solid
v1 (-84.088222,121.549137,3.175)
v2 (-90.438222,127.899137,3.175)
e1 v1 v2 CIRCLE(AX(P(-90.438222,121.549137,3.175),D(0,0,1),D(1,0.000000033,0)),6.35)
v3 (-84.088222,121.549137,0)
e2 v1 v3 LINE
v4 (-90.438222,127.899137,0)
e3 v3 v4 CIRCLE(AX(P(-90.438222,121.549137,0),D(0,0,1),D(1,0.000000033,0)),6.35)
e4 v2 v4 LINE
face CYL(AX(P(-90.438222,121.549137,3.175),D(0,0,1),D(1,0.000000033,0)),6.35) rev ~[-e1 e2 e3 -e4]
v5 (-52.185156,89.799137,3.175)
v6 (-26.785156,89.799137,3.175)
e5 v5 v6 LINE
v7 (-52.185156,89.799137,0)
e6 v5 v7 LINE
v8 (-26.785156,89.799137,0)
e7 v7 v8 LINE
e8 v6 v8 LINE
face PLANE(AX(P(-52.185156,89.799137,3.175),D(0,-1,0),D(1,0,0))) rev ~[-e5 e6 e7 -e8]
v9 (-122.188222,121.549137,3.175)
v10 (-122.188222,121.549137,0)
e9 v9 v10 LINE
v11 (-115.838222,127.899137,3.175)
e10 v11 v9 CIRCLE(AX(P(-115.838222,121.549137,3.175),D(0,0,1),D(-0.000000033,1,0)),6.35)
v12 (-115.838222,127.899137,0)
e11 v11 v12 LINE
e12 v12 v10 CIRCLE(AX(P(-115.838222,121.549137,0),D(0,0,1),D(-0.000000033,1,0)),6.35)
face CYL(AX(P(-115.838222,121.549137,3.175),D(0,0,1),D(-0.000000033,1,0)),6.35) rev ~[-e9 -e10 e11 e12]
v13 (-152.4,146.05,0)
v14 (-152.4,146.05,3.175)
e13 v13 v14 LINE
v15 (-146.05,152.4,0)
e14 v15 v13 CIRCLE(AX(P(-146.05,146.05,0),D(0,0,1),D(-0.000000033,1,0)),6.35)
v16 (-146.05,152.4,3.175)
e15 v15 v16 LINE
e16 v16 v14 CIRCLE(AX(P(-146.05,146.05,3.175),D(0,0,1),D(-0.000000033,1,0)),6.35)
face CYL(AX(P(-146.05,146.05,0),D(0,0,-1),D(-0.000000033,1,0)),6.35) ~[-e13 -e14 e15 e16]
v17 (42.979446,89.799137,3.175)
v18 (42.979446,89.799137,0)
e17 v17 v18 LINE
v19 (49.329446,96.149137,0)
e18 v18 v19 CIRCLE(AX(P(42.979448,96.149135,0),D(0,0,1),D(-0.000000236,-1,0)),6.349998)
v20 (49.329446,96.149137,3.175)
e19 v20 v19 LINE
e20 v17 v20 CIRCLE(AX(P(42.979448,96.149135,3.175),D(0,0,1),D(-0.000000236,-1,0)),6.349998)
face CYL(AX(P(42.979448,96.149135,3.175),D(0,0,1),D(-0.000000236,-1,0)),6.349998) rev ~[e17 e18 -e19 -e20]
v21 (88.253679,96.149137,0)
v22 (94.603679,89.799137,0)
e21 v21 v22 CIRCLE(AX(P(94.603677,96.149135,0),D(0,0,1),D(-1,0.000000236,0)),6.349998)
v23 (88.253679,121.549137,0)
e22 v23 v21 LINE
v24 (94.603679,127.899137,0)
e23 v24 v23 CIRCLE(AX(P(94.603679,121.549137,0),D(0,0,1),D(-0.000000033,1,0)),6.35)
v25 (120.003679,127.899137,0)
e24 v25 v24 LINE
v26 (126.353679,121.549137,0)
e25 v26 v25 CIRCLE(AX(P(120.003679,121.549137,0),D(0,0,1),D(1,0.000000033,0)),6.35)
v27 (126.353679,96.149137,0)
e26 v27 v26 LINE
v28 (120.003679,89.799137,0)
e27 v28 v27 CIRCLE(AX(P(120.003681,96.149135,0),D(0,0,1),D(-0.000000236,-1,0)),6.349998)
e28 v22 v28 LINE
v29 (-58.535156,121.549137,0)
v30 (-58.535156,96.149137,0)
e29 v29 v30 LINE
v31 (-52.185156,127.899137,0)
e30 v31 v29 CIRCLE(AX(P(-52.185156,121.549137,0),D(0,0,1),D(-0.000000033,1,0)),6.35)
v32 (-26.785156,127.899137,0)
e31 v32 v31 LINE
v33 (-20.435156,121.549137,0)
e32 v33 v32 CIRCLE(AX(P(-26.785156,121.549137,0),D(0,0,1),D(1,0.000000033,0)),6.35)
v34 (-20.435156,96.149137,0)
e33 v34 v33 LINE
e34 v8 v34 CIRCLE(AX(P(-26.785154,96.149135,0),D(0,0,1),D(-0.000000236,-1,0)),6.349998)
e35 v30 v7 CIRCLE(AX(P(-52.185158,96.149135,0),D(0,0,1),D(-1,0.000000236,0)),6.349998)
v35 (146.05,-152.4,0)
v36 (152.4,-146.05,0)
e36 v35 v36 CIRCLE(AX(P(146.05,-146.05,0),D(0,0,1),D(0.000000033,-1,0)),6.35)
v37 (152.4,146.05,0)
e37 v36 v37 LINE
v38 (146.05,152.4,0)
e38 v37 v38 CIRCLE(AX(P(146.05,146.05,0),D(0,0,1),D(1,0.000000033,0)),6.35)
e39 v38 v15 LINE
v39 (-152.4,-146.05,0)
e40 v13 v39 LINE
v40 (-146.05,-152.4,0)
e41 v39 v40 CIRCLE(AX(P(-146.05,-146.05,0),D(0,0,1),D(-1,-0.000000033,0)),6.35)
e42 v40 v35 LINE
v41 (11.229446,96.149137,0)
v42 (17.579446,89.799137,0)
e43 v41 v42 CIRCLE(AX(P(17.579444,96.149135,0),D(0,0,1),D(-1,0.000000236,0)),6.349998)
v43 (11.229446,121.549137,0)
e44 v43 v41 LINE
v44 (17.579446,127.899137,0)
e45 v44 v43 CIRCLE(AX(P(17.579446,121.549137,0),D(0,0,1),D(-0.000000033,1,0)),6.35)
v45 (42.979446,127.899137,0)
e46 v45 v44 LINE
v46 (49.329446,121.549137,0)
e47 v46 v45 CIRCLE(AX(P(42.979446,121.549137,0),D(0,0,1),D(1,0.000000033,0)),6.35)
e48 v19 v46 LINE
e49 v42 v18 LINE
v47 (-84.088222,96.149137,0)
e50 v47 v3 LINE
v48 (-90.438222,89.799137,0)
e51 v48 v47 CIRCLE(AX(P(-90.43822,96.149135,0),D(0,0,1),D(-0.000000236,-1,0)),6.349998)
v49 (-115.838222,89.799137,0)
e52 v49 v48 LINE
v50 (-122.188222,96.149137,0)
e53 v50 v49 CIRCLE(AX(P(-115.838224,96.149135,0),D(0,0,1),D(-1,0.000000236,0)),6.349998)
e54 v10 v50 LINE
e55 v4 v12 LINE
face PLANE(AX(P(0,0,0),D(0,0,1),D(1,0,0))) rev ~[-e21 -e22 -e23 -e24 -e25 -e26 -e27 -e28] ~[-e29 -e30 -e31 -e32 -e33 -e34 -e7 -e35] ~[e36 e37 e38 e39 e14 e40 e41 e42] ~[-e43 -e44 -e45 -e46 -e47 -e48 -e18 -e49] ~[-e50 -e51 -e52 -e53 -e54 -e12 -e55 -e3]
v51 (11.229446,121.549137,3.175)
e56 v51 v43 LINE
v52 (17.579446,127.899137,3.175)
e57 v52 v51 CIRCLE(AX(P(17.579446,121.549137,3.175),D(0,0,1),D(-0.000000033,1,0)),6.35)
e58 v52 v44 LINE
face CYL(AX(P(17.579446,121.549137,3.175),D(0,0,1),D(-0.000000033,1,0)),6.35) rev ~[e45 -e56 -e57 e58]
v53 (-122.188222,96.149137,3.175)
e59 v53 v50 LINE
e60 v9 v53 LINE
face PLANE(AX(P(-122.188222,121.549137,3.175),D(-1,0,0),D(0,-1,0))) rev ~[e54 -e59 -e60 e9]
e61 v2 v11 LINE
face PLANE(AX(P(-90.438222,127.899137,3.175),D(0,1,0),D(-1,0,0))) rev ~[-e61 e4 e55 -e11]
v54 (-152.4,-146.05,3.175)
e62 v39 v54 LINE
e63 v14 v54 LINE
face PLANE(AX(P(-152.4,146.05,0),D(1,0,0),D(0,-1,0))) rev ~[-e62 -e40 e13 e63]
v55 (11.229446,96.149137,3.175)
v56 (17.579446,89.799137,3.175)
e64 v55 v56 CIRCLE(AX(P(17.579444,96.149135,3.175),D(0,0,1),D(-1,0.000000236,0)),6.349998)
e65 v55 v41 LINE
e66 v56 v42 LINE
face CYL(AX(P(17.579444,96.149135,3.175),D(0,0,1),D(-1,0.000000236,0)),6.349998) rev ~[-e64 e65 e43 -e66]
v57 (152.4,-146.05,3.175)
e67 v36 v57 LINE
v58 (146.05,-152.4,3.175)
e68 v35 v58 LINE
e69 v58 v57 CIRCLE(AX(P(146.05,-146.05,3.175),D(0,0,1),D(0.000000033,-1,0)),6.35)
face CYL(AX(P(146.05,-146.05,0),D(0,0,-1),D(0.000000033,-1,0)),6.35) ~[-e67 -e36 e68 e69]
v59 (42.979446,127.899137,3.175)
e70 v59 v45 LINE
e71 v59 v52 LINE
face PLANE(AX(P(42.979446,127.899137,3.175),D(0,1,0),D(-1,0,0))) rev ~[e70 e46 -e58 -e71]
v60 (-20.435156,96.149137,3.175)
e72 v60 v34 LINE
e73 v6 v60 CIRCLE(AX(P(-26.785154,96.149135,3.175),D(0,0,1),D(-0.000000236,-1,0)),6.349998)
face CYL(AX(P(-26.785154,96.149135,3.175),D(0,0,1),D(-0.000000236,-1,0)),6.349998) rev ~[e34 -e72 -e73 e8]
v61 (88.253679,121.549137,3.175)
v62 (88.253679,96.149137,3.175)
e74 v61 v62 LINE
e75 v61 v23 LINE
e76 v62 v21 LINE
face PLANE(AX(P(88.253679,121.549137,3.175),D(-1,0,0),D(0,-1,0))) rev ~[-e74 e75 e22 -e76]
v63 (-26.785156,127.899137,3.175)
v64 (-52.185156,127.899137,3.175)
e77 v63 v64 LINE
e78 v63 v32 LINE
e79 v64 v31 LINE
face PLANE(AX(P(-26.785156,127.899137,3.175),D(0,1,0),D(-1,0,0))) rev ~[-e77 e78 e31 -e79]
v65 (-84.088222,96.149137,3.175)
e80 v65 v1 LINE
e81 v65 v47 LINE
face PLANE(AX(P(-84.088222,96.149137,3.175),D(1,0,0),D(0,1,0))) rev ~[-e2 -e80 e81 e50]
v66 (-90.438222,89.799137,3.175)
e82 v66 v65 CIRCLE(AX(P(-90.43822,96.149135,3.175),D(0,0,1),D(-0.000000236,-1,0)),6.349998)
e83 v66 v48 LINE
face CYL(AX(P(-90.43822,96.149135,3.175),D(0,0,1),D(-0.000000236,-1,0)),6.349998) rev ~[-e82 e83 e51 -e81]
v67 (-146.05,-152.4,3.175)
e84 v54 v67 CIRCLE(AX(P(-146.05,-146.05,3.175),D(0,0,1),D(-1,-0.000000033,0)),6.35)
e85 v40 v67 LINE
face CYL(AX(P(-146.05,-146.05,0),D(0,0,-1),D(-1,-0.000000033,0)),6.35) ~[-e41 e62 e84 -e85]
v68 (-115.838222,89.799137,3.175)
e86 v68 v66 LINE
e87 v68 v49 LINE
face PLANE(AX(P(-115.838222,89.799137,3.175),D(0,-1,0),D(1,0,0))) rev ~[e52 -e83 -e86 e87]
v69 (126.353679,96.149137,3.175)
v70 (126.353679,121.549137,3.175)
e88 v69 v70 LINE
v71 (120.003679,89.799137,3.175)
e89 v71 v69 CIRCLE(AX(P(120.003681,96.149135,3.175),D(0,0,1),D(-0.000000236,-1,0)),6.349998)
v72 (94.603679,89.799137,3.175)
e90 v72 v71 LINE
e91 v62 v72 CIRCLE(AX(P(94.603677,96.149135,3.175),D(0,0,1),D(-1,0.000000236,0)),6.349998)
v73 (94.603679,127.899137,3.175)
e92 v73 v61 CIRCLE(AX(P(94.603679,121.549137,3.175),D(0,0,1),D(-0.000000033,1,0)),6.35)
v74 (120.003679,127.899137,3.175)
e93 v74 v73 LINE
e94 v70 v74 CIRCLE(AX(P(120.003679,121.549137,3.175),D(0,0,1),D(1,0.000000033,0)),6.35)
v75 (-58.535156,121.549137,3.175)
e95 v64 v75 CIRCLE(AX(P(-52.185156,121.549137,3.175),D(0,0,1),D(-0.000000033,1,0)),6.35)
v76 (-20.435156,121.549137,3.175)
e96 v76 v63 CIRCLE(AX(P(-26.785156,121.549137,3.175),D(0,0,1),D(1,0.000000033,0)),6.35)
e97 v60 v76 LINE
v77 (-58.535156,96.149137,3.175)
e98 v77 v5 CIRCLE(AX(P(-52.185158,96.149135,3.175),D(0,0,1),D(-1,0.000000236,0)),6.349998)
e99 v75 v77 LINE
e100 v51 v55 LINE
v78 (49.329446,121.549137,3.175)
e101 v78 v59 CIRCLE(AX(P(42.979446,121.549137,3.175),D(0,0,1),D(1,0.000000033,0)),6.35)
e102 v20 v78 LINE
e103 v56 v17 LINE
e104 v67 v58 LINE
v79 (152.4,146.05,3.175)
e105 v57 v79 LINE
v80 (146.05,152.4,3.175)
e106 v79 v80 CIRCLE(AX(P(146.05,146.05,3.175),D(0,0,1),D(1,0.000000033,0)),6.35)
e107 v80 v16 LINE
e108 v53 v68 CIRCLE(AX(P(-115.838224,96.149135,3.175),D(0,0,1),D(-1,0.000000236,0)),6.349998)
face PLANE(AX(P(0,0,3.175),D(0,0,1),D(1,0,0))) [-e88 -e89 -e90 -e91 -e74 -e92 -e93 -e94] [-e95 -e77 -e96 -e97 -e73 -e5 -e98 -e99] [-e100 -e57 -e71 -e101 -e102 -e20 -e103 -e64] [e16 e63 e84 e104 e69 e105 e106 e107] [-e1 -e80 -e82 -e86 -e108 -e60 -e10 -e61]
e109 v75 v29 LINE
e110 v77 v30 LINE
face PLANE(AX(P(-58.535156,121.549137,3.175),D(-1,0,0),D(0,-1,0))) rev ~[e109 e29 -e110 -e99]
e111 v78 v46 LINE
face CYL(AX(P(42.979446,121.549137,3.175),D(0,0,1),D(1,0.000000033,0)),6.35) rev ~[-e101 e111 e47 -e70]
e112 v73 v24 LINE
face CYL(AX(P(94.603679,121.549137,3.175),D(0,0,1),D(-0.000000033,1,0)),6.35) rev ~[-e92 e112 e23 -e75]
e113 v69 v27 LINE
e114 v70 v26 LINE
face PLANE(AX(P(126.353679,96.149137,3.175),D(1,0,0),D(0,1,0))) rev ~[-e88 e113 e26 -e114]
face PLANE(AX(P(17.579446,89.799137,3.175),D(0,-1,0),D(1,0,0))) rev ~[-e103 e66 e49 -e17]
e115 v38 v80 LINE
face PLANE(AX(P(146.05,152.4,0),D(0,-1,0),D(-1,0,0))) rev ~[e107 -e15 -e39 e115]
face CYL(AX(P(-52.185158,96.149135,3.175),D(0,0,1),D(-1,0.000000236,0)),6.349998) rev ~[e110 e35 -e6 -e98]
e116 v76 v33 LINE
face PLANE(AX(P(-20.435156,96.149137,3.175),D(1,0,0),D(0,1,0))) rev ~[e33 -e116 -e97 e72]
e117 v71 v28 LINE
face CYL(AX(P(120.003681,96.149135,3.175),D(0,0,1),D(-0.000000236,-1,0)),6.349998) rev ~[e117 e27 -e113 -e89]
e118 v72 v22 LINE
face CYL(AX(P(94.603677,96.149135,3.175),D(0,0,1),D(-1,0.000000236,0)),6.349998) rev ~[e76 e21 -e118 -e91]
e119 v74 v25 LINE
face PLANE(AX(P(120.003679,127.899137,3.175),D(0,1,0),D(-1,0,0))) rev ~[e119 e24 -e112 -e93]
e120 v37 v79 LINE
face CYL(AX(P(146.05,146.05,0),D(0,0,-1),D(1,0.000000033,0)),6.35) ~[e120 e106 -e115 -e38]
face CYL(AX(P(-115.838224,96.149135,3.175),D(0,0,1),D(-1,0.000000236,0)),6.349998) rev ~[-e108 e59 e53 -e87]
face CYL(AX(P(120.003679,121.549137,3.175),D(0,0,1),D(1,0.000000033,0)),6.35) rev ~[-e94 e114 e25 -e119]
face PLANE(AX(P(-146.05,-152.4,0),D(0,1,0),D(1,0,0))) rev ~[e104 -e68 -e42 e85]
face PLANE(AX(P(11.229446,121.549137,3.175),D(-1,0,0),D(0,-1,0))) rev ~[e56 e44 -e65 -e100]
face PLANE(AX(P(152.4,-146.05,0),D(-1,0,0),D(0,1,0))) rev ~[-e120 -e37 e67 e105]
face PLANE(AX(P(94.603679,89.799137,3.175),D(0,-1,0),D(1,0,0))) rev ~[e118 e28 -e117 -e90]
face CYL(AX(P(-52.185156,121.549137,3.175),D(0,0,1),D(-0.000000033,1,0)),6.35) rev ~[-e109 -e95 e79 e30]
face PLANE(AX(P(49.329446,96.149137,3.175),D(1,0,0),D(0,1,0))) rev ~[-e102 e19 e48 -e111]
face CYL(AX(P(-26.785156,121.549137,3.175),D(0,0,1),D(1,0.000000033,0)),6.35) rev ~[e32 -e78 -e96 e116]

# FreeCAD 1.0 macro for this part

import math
import FreeCAD as App
import Part
import Sketcher
Q = App.Units.Quantity

doc = App.newDocument("Part")
body = doc.addObject("PartDesign::Body", "Body")

# Sketch on XY plane
sketch1 = body.newObject("Sketcher::SketchObject", "Sketch")
sketch1.AttachmentSupport = (doc.getObject("XY_Plane"), [""])
sketch1.MapMode = "FlatFace"
sketch1.addGeometry(Part.ArcOfCircle(Part.Circle(App.Vector(146, 146, 0), App.Vector(0, 0, 1), 6), math.radians(0), math.radians(90)), False)
sketch1.addGeometry(Part.LineSegment(App.Vector(146, 152, 0), App.Vector(-146, 152, 0)), False)
sketch1.addGeometry(Part.ArcOfCircle(Part.Circle(App.Vector(-146, 146, 0), App.Vector(0, 0, 1), 6), math.radians(90), math.radians(180)), False)
sketch1.addGeometry(Part.LineSegment(App.Vector(-152, 146, 0), App.Vector(-152, -146, 0)), False)
sketch1.addGeometry(Part.ArcOfCircle(Part.Circle(App.Vector(-146, -146, 0), App.Vector(0, 0, 1), 6), math.radians(-180), math.radians(-90)), False)
sketch1.addGeometry(Part.LineSegment(App.Vector(-146, -152, 0), App.Vector(146, -152, 0)), False)
sketch1.addGeometry(Part.ArcOfCircle(Part.Circle(App.Vector(146, -146, 0), App.Vector(0, 0, 1), 6), math.radians(-90), math.radians(0)), False)
sketch1.addGeometry(Part.LineSegment(App.Vector(152, -146, 0), App.Vector(152, 146, 0)), False)
sketch1.addConstraint(Sketcher.Constraint("Tangent", 0, 2, 1, 1))
sketch1.addConstraint(Sketcher.Constraint("Tangent", 1, 2, 2, 1))
sketch1.addConstraint(Sketcher.Constraint("Tangent", 2, 2, 3, 1))
sketch1.addConstraint(Sketcher.Constraint("Tangent", 3, 2, 4, 1))
sketch1.addConstraint(Sketcher.Constraint("Tangent", 4, 2, 5, 1))
sketch1.addConstraint(Sketcher.Constraint("Tangent", 5, 2, 6, 1))
sketch1.addConstraint(Sketcher.Constraint("Tangent", 6, 2, 7, 1))
sketch1.addConstraint(Sketcher.Constraint("Tangent", 7, 2, 0, 1))
sketch1.addConstraint(Sketcher.Constraint("Horizontal", 1))
sketch1.addConstraint(Sketcher.Constraint("Vertical", 3))
sketch1.addConstraint(Sketcher.Constraint("Horizontal", 5))
sketch1.addConstraint(Sketcher.Constraint("Vertical", 7))
sketch1.addConstraint(Sketcher.Constraint("Equal", 0, 2))
sketch1.addConstraint(Sketcher.Constraint("Equal", 2, 4))
sketch1.addConstraint(Sketcher.Constraint("Equal", 4, 6))
sketch1.addConstraint(Sketcher.Constraint("Symmetric", 0, 3, 4, 3, -1, 1))
sketch1.addConstraint(Sketcher.Constraint("Equal", 5, 3))
sketch1.addConstraint(Sketcher.Constraint("Radius", 0, Q("0.25 in")))
sketch1.addConstraint(Sketcher.Constraint("DistanceX", 1, 2, 1, 1, Q("11.5 in")))
pad1 = body.newObject("PartDesign::Pad", "Pad")
pad1.Profile = sketch1
pad1.Length = Q("0.125 in")

# Sketch on XY plane
sketch2 = body.newObject("Sketcher::SketchObject", "Sketch001")
sketch2.AttachmentSupport = (doc.getObject("XY_Plane"), [""])
sketch2.MapMode = "FlatFace"
sketch2.AttachmentOffset = App.Placement(App.Vector(0, 0, 0.125 * 25.4), App.Rotation())
sketch2.addGeometry(Part.LineSegment(App.Vector(-116, 90, 0), App.Vector(-90, 90, 0)), False)
sketch2.addGeometry(Part.ArcOfCircle(Part.Circle(App.Vector(-90, 96, 0), App.Vector(0, 0, 1), 6), math.radians(-90), math.radians(0)), False)
sketch2.addGeometry(Part.LineSegment(App.Vector(-84, 96, 0), App.Vector(-84, 122, 0)), False)
sketch2.addGeometry(Part.ArcOfCircle(Part.Circle(App.Vector(-90, 122, 0), App.Vector(0, 0, 1), 6), math.radians(0), math.radians(90)), False)
sketch2.addGeometry(Part.LineSegment(App.Vector(-90, 128, 0), App.Vector(-116, 128, 0)), False)
sketch2.addGeometry(Part.ArcOfCircle(Part.Circle(App.Vector(-116, 122, 0), App.Vector(0, 0, 1), 6), math.radians(90), math.radians(180)), False)
sketch2.addGeometry(Part.LineSegment(App.Vector(-122, 122, 0), App.Vector(-122, 96, 0)), False)
sketch2.addGeometry(Part.ArcOfCircle(Part.Circle(App.Vector(-116, 96, 0), App.Vector(0, 0, 1), 6), math.radians(180), math.radians(270)), False)
sketch2.addGeometry(Part.LineSegment(App.Vector(-52, 90, 0), App.Vector(-27, 90, 0)), False)
sketch2.addGeometry(Part.ArcOfCircle(Part.Circle(App.Vector(-27, 96, 0), App.Vector(0, 0, 1), 6), math.radians(-90), math.radians(0)), False)
sketch2.addGeometry(Part.LineSegment(App.Vector(-20, 96, 0), App.Vector(-20, 122, 0)), False)
sketch2.addGeometry(Part.ArcOfCircle(Part.Circle(App.Vector(-27, 122, 0), App.Vector(0, 0, 1), 6), math.radians(0), math.radians(90)), False)
sketch2.addGeometry(Part.LineSegment(App.Vector(-27, 128, 0), App.Vector(-52, 128, 0)), False)
sketch2.addGeometry(Part.ArcOfCircle(Part.Circle(App.Vector(-52, 122, 0), App.Vector(0, 0, 1), 6), math.radians(90), math.radians(180)), False)
sketch2.addGeometry(Part.LineSegment(App.Vector(-59, 122, 0), App.Vector(-59, 96, 0)), False)
sketch2.addGeometry(Part.ArcOfCircle(Part.Circle(App.Vector(-52, 96, 0), App.Vector(0, 0, 1), 6), math.radians(180), math.radians(270)), False)
sketch2.addGeometry(Part.LineSegment(App.Vector(95, 90, 0), App.Vector(120, 90, 0)), False)
sketch2.addGeometry(Part.ArcOfCircle(Part.Circle(App.Vector(120, 96, 0), App.Vector(0, 0, 1), 6), math.radians(-90), math.radians(0)), False)
sketch2.addGeometry(Part.LineSegment(App.Vector(126, 96, 0), App.Vector(126, 122, 0)), False)
sketch2.addGeometry(Part.ArcOfCircle(Part.Circle(App.Vector(120, 122, 0), App.Vector(0, 0, 1), 6), math.radians(0), math.radians(90)), False)
sketch2.addGeometry(Part.LineSegment(App.Vector(120, 128, 0), App.Vector(95, 128, 0)), False)
sketch2.addGeometry(Part.ArcOfCircle(Part.Circle(App.Vector(95, 122, 0), App.Vector(0, 0, 1), 6), math.radians(90), math.radians(180)), False)
sketch2.addGeometry(Part.LineSegment(App.Vector(88, 122, 0), App.Vector(88, 96, 0)), False)
sketch2.addGeometry(Part.ArcOfCircle(Part.Circle(App.Vector(95, 96, 0), App.Vector(0, 0, 1), 6), math.radians(180), math.radians(270)), False)
sketch2.addGeometry(Part.LineSegment(App.Vector(18, 90, 0), App.Vector(43, 90, 0)), False)
sketch2.addGeometry(Part.ArcOfCircle(Part.Circle(App.Vector(43, 96, 0), App.Vector(0, 0, 1), 6), math.radians(-90), math.radians(0)), False)
sketch2.addGeometry(Part.LineSegment(App.Vector(49, 96, 0), App.Vector(49, 122, 0)), False)
sketch2.addGeometry(Part.ArcOfCircle(Part.Circle(App.Vector(43, 122, 0), App.Vector(0, 0, 1), 6), math.radians(0), math.radians(90)), False)
sketch2.addGeometry(Part.LineSegment(App.Vector(43, 128, 0), App.Vector(18, 128, 0)), False)
sketch2.addGeometry(Part.ArcOfCircle(Part.Circle(App.Vector(18, 122, 0), App.Vector(0, 0, 1), 6), math.radians(90), math.radians(180)), False)
sketch2.addGeometry(Part.LineSegment(App.Vector(11, 122, 0), App.Vector(11, 96, 0)), False)
sketch2.addGeometry(Part.ArcOfCircle(Part.Circle(App.Vector(18, 96, 0), App.Vector(0, 0, 1), 6), math.radians(180), math.radians(270)), False)
sketch2.addConstraint(Sketcher.Constraint("Tangent", 0, 2, 1, 1))
sketch2.addConstraint(Sketcher.Constraint("Tangent", 1, 2, 2, 1))
sketch2.addConstraint(Sketcher.Constraint("Tangent", 2, 2, 3, 1))
sketch2.addConstraint(Sketcher.Constraint("Tangent", 3, 2, 4, 1))
sketch2.addConstraint(Sketcher.Constraint("Tangent", 4, 2, 5, 1))
sketch2.addConstraint(Sketcher.Constraint("Tangent", 5, 2, 6, 1))
sketch2.addConstraint(Sketcher.Constraint("Tangent", 6, 2, 7, 1))
sketch2.addConstraint(Sketcher.Constraint("Tangent", 7, 2, 0, 1))
sketch2.addConstraint(Sketcher.Constraint("Tangent", 8, 2, 9, 1))
sketch2.addConstraint(Sketcher.Constraint("Tangent", 9, 2, 10, 1))
sketch2.addConstraint(Sketcher.Constraint("Tangent", 10, 2, 11, 1))
sketch2.addConstraint(Sketcher.Constraint("Tangent", 11, 2, 12, 1))
sketch2.addConstraint(Sketcher.Constraint("Tangent", 12, 2, 13, 1))
sketch2.addConstraint(Sketcher.Constraint("Tangent", 13, 2, 14, 1))
sketch2.addConstraint(Sketcher.Constraint("Tangent", 14, 2, 15, 1))
sketch2.addConstraint(Sketcher.Constraint("Tangent", 15, 2, 8, 1))
sketch2.addConstraint(Sketcher.Constraint("Tangent", 16, 2, 17, 1))
sketch2.addConstraint(Sketcher.Constraint("Tangent", 17, 2, 18, 1))
sketch2.addConstraint(Sketcher.Constraint("Tangent", 18, 2, 19, 1))
sketch2.addConstraint(Sketcher.Constraint("Tangent", 19, 2, 20, 1))
sketch2.addConstraint(Sketcher.Constraint("Tangent", 20, 2, 21, 1))
sketch2.addConstraint(Sketcher.Constraint("Tangent", 21, 2, 22, 1))
sketch2.addConstraint(Sketcher.Constraint("Tangent", 22, 2, 23, 1))
sketch2.addConstraint(Sketcher.Constraint("Tangent", 23, 2, 16, 1))
sketch2.addConstraint(Sketcher.Constraint("Tangent", 24, 2, 25, 1))
sketch2.addConstraint(Sketcher.Constraint("Tangent", 25, 2, 26, 1))
sketch2.addConstraint(Sketcher.Constraint("Tangent", 26, 2, 27, 1))
sketch2.addConstraint(Sketcher.Constraint("Tangent", 27, 2, 28, 1))
sketch2.addConstraint(Sketcher.Constraint("Tangent", 28, 2, 29, 1))
sketch2.addConstraint(Sketcher.Constraint("Tangent", 29, 2, 30, 1))
sketch2.addConstraint(Sketcher.Constraint("Tangent", 30, 2, 31, 1))
sketch2.addConstraint(Sketcher.Constraint("Tangent", 31, 2, 24, 1))
sketch2.addConstraint(Sketcher.Constraint("Horizontal", 0))
sketch2.addConstraint(Sketcher.Constraint("Vertical", 2))
sketch2.addConstraint(Sketcher.Constraint("Horizontal", 4))
sketch2.addConstraint(Sketcher.Constraint("Vertical", 6))
sketch2.addConstraint(Sketcher.Constraint("Horizontal", 8))
sketch2.addConstraint(Sketcher.Constraint("Vertical", 10))
sketch2.addConstraint(Sketcher.Constraint("Horizontal", 12))
sketch2.addConstraint(Sketcher.Constraint("Vertical", 14))
sketch2.addConstraint(Sketcher.Constraint("Horizontal", 16))
sketch2.addConstraint(Sketcher.Constraint("Vertical", 18))
sketch2.addConstraint(Sketcher.Constraint("Horizontal", 20))
sketch2.addConstraint(Sketcher.Constraint("Vertical", 22))
sketch2.addConstraint(Sketcher.Constraint("Horizontal", 24))
sketch2.addConstraint(Sketcher.Constraint("Vertical", 26))
sketch2.addConstraint(Sketcher.Constraint("Horizontal", 28))
sketch2.addConstraint(Sketcher.Constraint("Vertical", 30))
sketch2.addConstraint(Sketcher.Constraint("Equal", 1, 3))
sketch2.addConstraint(Sketcher.Constraint("Equal", 3, 5))
sketch2.addConstraint(Sketcher.Constraint("Equal", 5, 7))
sketch2.addConstraint(Sketcher.Constraint("Equal", 7, 9))
sketch2.addConstraint(Sketcher.Constraint("Equal", 9, 11))
sketch2.addConstraint(Sketcher.Constraint("Equal", 11, 13))
sketch2.addConstraint(Sketcher.Constraint("Equal", 13, 15))
sketch2.addConstraint(Sketcher.Constraint("Equal", 15, 17))
sketch2.addConstraint(Sketcher.Constraint("Equal", 17, 19))
sketch2.addConstraint(Sketcher.Constraint("Equal", 19, 21))
sketch2.addConstraint(Sketcher.Constraint("Equal", 21, 23))
sketch2.addConstraint(Sketcher.Constraint("Equal", 23, 25))
sketch2.addConstraint(Sketcher.Constraint("Equal", 25, 27))
sketch2.addConstraint(Sketcher.Constraint("Equal", 27, 29))
sketch2.addConstraint(Sketcher.Constraint("Equal", 29, 31))
sketch2.addConstraint(Sketcher.Constraint("Horizontal", 7, 3, 9, 3))
sketch2.addConstraint(Sketcher.Constraint("Horizontal", 5, 3, 11, 3))
sketch2.addConstraint(Sketcher.Constraint("Horizontal", 15, 3, 17, 3))
sketch2.addConstraint(Sketcher.Constraint("Horizontal", 13, 3, 19, 3))
sketch2.addConstraint(Sketcher.Constraint("Horizontal", 23, 3, 25, 3))
sketch2.addConstraint(Sketcher.Constraint("Horizontal", 21, 3, 27, 3))
sketch2.addConstraint(Sketcher.Constraint("Equal", 4, 8))
sketch2.addConstraint(Sketcher.Constraint("Equal", 12, 16))
sketch2.addConstraint(Sketcher.Constraint("Equal", 20, 24))
sketch2.addConstraint(Sketcher.Constraint("Equal", 28, 2))
sketch2.addConstraint(Sketcher.Constraint("DistanceX", 0, 1, 0, 2, Q("1 in")))
sketch2.addConstraint(Sketcher.Constraint("Radius", 1, Q("0.2499999 in")))
sketch2.addConstraint(Sketcher.Constraint("DistanceX", 1, 3, 17, 3, Q("210.441901 mm")))
sketch2.addConstraint(Sketcher.Constraint("DistanceX", 9, 3, 25, 3, Q("69.764602 mm")))
sketch2.addConstraint(Sketcher.Constraint("DistanceX", 1, 3, -1, 1, Q("90.43822 mm")))
sketch2.addConstraint(Sketcher.Constraint("DistanceX", 7, 3, 9, 3, Q("89.053069 mm")))
sketch2.addConstraint(Sketcher.Constraint("DistanceY", -1, 1, 1, 3, Q("96.149135 mm")))
pocket1 = body.newObject("PartDesign::Pocket", "Pocket")
pocket1.Profile = sketch2
pocket1.Type = "ThroughAll"

doc.recompute()
